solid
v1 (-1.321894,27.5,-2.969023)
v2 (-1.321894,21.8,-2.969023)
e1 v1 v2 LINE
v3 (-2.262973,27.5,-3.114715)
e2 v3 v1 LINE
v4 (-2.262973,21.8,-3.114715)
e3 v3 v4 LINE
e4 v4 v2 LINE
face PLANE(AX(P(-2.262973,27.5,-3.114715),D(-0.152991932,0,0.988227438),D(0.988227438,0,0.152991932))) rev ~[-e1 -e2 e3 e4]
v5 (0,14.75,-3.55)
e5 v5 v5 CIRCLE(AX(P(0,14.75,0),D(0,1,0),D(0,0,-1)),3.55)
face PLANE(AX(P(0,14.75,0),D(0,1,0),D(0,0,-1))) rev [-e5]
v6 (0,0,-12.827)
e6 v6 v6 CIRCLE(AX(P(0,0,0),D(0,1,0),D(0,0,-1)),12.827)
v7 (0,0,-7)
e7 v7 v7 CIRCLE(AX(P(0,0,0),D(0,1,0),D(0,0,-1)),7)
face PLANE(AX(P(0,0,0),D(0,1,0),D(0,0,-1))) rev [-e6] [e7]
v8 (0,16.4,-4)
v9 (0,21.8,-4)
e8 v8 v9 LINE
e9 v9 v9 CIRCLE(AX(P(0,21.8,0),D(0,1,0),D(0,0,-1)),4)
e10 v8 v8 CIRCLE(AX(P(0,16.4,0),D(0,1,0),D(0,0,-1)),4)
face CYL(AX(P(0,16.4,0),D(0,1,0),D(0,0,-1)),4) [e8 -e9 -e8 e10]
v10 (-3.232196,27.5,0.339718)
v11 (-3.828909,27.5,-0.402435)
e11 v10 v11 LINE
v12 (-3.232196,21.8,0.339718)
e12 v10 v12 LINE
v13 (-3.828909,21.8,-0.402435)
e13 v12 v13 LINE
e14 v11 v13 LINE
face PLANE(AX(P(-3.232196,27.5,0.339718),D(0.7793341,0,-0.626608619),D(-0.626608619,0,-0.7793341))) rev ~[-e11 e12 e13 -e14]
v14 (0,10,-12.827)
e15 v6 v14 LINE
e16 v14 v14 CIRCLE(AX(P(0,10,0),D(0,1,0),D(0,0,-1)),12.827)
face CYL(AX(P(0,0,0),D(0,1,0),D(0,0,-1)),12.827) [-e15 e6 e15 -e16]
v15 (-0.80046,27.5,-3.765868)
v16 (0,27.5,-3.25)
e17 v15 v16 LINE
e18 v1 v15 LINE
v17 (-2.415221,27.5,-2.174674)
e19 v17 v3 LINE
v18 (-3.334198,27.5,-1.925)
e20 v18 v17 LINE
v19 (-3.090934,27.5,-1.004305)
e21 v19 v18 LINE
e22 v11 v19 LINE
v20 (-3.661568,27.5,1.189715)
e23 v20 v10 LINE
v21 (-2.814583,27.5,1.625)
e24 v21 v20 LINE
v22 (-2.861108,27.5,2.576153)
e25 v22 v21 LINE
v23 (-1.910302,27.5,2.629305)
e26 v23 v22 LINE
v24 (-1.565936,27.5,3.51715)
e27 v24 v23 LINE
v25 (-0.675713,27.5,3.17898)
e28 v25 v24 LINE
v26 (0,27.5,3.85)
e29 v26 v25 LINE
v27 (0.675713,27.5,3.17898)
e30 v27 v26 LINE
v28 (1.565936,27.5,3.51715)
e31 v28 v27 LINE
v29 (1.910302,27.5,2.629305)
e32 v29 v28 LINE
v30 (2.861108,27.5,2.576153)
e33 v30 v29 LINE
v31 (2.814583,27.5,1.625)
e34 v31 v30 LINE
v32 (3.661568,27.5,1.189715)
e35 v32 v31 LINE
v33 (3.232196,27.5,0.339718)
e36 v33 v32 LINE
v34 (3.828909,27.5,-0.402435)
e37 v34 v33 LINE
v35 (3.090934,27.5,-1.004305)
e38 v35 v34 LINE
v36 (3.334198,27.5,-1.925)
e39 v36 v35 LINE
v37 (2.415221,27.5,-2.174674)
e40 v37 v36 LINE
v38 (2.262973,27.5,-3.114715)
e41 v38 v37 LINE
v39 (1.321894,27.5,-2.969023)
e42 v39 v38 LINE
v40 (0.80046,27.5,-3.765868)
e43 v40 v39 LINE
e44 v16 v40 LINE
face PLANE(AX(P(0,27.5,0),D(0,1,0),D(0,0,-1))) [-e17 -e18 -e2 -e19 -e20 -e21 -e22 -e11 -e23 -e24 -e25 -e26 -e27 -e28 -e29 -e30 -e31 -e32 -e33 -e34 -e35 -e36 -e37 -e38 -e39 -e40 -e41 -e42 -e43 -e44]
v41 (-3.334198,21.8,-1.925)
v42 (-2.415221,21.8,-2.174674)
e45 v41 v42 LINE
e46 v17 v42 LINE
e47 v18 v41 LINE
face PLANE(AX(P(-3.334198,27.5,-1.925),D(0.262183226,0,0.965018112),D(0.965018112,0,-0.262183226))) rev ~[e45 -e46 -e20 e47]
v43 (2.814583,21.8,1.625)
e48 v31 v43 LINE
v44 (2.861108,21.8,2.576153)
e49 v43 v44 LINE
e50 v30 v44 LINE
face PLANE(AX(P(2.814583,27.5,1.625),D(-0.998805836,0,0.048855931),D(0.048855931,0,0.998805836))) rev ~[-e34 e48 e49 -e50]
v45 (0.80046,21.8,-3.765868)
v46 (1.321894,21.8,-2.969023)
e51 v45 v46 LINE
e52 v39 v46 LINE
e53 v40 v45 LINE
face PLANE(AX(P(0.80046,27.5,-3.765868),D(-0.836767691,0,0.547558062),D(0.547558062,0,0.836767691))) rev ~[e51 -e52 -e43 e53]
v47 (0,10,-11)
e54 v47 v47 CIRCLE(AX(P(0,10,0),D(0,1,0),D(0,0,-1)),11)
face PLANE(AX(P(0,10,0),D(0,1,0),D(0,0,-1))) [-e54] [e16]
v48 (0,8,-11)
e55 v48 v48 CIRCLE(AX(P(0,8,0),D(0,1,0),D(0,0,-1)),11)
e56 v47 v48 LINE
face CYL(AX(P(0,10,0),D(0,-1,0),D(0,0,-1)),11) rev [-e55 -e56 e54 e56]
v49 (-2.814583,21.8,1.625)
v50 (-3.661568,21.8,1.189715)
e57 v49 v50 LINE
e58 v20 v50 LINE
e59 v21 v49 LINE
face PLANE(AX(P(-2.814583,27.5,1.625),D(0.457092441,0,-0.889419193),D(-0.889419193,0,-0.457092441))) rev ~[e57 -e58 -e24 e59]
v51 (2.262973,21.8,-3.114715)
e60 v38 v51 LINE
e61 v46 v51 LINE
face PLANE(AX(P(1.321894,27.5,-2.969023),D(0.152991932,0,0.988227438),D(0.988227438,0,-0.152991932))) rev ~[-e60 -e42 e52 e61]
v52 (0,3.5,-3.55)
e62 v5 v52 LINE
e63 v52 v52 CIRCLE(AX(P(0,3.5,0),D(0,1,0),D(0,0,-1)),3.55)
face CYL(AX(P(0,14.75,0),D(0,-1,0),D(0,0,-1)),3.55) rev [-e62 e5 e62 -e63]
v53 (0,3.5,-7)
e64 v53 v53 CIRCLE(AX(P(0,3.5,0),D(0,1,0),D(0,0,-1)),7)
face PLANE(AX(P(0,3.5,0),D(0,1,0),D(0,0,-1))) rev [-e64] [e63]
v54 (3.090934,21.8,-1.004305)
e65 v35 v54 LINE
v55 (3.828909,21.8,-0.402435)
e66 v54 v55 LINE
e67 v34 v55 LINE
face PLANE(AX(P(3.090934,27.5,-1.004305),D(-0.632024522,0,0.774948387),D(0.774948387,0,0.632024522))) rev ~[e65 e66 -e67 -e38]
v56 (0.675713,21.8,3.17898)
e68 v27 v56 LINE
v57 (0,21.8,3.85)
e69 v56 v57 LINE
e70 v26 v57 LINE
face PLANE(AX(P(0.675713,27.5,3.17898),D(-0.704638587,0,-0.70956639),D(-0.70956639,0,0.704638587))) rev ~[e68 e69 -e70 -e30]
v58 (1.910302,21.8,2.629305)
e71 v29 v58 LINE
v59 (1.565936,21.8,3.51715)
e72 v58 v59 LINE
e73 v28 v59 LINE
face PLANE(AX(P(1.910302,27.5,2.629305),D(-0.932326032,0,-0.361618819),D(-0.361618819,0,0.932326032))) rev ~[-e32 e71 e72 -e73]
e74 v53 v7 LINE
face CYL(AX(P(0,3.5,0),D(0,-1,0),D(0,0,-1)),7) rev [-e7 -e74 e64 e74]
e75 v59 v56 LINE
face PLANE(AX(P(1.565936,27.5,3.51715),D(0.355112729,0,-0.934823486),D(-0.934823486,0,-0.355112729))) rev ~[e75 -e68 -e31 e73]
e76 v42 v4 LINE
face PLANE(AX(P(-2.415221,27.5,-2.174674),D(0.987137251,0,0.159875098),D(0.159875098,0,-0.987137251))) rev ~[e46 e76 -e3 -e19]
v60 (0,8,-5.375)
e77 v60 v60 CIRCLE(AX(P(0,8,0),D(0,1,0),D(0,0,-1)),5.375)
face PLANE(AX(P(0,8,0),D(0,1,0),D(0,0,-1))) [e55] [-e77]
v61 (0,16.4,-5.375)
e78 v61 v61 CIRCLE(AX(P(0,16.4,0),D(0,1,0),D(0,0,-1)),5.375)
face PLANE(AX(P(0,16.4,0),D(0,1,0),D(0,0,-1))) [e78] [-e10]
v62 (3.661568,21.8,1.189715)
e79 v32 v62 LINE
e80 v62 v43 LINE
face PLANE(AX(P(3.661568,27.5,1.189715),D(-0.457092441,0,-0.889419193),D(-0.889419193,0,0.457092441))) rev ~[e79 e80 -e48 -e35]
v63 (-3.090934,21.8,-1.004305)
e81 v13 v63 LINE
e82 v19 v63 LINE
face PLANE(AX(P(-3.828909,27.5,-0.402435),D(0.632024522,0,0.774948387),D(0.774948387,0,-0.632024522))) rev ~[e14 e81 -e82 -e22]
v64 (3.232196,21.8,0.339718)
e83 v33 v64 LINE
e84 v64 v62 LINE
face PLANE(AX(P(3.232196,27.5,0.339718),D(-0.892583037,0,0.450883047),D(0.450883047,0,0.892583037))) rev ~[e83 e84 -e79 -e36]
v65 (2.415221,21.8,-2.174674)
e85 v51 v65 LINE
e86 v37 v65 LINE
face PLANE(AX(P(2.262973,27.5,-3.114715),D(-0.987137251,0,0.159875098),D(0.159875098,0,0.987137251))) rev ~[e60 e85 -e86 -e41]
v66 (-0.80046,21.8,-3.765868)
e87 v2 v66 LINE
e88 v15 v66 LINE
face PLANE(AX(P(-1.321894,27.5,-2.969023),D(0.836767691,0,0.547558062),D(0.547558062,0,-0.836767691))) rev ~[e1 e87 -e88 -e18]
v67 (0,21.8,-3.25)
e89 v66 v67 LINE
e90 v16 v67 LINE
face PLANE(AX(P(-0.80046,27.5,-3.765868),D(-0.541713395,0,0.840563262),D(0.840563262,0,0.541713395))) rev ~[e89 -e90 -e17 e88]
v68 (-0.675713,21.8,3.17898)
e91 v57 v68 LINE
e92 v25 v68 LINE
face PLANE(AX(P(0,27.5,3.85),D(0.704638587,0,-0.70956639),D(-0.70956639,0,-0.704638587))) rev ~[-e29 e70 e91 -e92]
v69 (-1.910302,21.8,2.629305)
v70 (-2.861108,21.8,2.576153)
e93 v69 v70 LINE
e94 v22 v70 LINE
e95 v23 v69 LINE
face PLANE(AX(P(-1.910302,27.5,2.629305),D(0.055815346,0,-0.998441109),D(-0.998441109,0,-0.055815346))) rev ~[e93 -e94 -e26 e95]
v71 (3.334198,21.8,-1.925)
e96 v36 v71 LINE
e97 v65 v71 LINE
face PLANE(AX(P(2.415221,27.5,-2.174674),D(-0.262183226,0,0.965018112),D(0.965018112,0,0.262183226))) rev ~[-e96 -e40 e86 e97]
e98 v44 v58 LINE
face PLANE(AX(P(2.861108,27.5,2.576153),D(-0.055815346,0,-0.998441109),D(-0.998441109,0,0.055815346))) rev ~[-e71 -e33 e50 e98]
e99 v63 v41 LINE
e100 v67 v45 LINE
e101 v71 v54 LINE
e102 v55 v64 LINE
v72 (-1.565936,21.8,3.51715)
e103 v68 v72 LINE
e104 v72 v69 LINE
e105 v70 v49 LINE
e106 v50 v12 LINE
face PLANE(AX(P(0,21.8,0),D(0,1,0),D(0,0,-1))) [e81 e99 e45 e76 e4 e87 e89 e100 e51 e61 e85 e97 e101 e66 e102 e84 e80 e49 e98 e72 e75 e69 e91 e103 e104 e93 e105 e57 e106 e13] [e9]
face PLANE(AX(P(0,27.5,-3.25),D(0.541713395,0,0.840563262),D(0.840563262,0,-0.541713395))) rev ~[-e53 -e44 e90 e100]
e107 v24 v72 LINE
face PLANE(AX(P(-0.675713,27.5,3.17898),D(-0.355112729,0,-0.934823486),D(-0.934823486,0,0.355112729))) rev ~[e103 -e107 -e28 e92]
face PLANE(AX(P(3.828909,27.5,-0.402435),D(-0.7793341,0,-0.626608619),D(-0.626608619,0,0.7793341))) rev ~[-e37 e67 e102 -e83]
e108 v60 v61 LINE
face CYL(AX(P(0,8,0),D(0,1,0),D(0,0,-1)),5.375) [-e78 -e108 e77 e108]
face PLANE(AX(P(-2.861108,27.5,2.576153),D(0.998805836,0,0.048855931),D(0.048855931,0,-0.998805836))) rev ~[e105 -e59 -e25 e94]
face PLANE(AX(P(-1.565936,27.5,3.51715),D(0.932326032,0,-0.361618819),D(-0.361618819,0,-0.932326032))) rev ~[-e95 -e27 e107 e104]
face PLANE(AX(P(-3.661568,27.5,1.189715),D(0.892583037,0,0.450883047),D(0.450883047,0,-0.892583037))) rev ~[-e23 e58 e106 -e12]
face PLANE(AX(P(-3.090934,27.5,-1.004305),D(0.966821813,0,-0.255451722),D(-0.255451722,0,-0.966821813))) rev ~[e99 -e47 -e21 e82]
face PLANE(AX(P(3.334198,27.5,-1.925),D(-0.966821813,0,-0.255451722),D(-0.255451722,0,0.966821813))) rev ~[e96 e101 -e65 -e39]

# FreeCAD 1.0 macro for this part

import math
import FreeCAD as App
import Part
import Sketcher
Q = App.Units.Quantity


def add_polygon(sketch, points):
    """Adds a closed chain of lines whose ends are joined by coincident constraints."""
    first, n = sketch.GeometryCount, len(points)
    for a, b in zip(points, points[1:] + points[:1]):
        sketch.addGeometry(Part.LineSegment(App.Vector(*a, 0), App.Vector(*b, 0)), False)
    for i in range(n):
        sketch.addConstraint(Sketcher.Constraint("Coincident", first + i, 2, first + (i + 1) % n, 1))

doc = App.newDocument("Part")
body = doc.addObject("PartDesign::Body", "Body")

sketch1 = doc.addObject("Sketcher::SketchObject", "Sketch")
body.addObject(sketch1)
sketch1.AttachmentSupport = (doc.XY_Plane, [""])
sketch1.MapMode = "FlatFace"
add_polygon(sketch1, [(12.827, 0), (12.827, 10), (11, 10), (11, 8), (5.375, 8), (5.375, 16.4), (4, 16.4), (4, 21.8), (3.85, 21.8), (3.85, 27.5), (0, 27.5), (0, 14.75), (3.55, 14.75), (3.55, 3.5), (7, 3.5), (7, 0)])
sketch1.addConstraint([
    Sketcher.Constraint("Vertical", 0),
    Sketcher.Constraint("Horizontal", 1),
    Sketcher.Constraint("Vertical", 2),
    Sketcher.Constraint("Horizontal", 3),
    Sketcher.Constraint("Vertical", 4),
    Sketcher.Constraint("Horizontal", 5),
    Sketcher.Constraint("Vertical", 6),
    Sketcher.Constraint("Horizontal", 7),
    Sketcher.Constraint("Vertical", 8),
    Sketcher.Constraint("Horizontal", 9),
    Sketcher.Constraint("Vertical", 10),
    Sketcher.Constraint("Horizontal", 11),
    Sketcher.Constraint("Vertical", 12),
    Sketcher.Constraint("Horizontal", 13),
    Sketcher.Constraint("Vertical", 14),
    Sketcher.Constraint("Horizontal", 15),
    Sketcher.Constraint("PointOnObject", 9, 2, -2),
    Sketcher.Constraint("PointOnObject", 14, 2, -1),
    Sketcher.Constraint("DistanceY", 0, 1, 0, 2, Q("10 mm")),
    Sketcher.Constraint("DistanceY", 2, 2, 2, 1, Q("2 mm")),
    Sketcher.Constraint("DistanceY", 4, 1, 4, 2, Q("8.4 mm")),
    Sketcher.Constraint("DistanceY", 6, 1, 6, 2, Q("5.4 mm")),
    Sketcher.Constraint("DistanceY", 8, 1, 8, 2, Q("5.7 mm")),
    Sketcher.Constraint("DistanceY", 14, 2, 14, 1, Q("3.5 mm")),
    Sketcher.Constraint("DistanceX", -1, 1, 1, 2, Q("11 mm")),
    Sketcher.Constraint("DistanceX", -1, 1, 5, 2, Q("4 mm")),
    Sketcher.Constraint("DistanceX", -1, 1, 13, 2, Q("7 mm")),
    Sketcher.Constraint("DistanceX", 7, 2, 7, 1, Q("0.15 mm")),
    Sketcher.Constraint("DistanceX", 11, 1, 11, 2, Q("3.55 mm")),
    Sketcher.Constraint("DistanceY", 10, 2, 10, 1, Q("12.75 mm")),
    Sketcher.Constraint("DistanceX", 1, 2, 1, 1, Q("1.827 mm")),
    Sketcher.Constraint("DistanceX", 3, 2, 3, 1, Q("5.625 mm")),
])
revolution = doc.addObject("PartDesign::Revolution", "Revolution")
body.addObject(revolution)
revolution.Profile = sketch1
revolution.ReferenceAxis = (sketch1, ["V_Axis"])
revolution.Angle = 360

sketch2 = doc.addObject("Sketcher::SketchObject", "Sketch001")
body.addObject(sketch2)
sketch2.AttachmentSupport = (doc.XZ_Plane, [""])
sketch2.MapMode = "FlatFace"
sketch2.AttachmentOffset = App.Placement(App.Vector(0, 0, -27.5), App.Rotation())
sketch2.addGeometry([
    Part.ArcOfCircle(Part.Circle(App.Vector(0, 0, 0), App.Vector(0, 0, 1), 3.85), math.radians(-102), math.radians(-78)),
    Part.LineSegment(App.Vector(-0.80046, -3.765868, 0), App.Vector(0, -3.25, 0)),
    Part.LineSegment(App.Vector(0, -3.25, 0), App.Vector(0.80046, -3.765868, 0)),
], False)
sketch2.addConstraint([
    Sketcher.Constraint("Coincident", 0, 1, 1, 1),
    Sketcher.Constraint("Coincident", 1, 2, 2, 1),
    Sketcher.Constraint("Coincident", 2, 2, 0, 2),
    Sketcher.Constraint("Coincident", 0, 3, -1, 1),
    Sketcher.Constraint("PointOnObject", 1, 2, -2),
    Sketcher.Constraint("Horizontal", 0, 1, 2, 2),
    Sketcher.Constraint("Radius", 0, Q("3.85 mm")),
    Sketcher.Constraint("DistanceY", 1, 2, -1, 1, Q("3.25 mm")),
    Sketcher.Constraint("Distance", 1, Q("0.95229 mm")),
])
pocket1 = doc.addObject("PartDesign::Pocket", "Pocket")
body.addObject(pocket1)
pocket1.Profile = sketch2
pocket1.Length = 5.7
pocket1.Reversed = True
doc.recompute()

polarpattern = doc.addObject("PartDesign::PolarPattern", "PolarPattern")
body.addObject(polarpattern)
polarpattern.Originals = [pocket1]
polarpattern.Axis = (doc.Y_Axis, [""])
polarpattern.Angle = 360
polarpattern.Occurrences = 15
body.Tip = polarpattern

doc.recompute()
